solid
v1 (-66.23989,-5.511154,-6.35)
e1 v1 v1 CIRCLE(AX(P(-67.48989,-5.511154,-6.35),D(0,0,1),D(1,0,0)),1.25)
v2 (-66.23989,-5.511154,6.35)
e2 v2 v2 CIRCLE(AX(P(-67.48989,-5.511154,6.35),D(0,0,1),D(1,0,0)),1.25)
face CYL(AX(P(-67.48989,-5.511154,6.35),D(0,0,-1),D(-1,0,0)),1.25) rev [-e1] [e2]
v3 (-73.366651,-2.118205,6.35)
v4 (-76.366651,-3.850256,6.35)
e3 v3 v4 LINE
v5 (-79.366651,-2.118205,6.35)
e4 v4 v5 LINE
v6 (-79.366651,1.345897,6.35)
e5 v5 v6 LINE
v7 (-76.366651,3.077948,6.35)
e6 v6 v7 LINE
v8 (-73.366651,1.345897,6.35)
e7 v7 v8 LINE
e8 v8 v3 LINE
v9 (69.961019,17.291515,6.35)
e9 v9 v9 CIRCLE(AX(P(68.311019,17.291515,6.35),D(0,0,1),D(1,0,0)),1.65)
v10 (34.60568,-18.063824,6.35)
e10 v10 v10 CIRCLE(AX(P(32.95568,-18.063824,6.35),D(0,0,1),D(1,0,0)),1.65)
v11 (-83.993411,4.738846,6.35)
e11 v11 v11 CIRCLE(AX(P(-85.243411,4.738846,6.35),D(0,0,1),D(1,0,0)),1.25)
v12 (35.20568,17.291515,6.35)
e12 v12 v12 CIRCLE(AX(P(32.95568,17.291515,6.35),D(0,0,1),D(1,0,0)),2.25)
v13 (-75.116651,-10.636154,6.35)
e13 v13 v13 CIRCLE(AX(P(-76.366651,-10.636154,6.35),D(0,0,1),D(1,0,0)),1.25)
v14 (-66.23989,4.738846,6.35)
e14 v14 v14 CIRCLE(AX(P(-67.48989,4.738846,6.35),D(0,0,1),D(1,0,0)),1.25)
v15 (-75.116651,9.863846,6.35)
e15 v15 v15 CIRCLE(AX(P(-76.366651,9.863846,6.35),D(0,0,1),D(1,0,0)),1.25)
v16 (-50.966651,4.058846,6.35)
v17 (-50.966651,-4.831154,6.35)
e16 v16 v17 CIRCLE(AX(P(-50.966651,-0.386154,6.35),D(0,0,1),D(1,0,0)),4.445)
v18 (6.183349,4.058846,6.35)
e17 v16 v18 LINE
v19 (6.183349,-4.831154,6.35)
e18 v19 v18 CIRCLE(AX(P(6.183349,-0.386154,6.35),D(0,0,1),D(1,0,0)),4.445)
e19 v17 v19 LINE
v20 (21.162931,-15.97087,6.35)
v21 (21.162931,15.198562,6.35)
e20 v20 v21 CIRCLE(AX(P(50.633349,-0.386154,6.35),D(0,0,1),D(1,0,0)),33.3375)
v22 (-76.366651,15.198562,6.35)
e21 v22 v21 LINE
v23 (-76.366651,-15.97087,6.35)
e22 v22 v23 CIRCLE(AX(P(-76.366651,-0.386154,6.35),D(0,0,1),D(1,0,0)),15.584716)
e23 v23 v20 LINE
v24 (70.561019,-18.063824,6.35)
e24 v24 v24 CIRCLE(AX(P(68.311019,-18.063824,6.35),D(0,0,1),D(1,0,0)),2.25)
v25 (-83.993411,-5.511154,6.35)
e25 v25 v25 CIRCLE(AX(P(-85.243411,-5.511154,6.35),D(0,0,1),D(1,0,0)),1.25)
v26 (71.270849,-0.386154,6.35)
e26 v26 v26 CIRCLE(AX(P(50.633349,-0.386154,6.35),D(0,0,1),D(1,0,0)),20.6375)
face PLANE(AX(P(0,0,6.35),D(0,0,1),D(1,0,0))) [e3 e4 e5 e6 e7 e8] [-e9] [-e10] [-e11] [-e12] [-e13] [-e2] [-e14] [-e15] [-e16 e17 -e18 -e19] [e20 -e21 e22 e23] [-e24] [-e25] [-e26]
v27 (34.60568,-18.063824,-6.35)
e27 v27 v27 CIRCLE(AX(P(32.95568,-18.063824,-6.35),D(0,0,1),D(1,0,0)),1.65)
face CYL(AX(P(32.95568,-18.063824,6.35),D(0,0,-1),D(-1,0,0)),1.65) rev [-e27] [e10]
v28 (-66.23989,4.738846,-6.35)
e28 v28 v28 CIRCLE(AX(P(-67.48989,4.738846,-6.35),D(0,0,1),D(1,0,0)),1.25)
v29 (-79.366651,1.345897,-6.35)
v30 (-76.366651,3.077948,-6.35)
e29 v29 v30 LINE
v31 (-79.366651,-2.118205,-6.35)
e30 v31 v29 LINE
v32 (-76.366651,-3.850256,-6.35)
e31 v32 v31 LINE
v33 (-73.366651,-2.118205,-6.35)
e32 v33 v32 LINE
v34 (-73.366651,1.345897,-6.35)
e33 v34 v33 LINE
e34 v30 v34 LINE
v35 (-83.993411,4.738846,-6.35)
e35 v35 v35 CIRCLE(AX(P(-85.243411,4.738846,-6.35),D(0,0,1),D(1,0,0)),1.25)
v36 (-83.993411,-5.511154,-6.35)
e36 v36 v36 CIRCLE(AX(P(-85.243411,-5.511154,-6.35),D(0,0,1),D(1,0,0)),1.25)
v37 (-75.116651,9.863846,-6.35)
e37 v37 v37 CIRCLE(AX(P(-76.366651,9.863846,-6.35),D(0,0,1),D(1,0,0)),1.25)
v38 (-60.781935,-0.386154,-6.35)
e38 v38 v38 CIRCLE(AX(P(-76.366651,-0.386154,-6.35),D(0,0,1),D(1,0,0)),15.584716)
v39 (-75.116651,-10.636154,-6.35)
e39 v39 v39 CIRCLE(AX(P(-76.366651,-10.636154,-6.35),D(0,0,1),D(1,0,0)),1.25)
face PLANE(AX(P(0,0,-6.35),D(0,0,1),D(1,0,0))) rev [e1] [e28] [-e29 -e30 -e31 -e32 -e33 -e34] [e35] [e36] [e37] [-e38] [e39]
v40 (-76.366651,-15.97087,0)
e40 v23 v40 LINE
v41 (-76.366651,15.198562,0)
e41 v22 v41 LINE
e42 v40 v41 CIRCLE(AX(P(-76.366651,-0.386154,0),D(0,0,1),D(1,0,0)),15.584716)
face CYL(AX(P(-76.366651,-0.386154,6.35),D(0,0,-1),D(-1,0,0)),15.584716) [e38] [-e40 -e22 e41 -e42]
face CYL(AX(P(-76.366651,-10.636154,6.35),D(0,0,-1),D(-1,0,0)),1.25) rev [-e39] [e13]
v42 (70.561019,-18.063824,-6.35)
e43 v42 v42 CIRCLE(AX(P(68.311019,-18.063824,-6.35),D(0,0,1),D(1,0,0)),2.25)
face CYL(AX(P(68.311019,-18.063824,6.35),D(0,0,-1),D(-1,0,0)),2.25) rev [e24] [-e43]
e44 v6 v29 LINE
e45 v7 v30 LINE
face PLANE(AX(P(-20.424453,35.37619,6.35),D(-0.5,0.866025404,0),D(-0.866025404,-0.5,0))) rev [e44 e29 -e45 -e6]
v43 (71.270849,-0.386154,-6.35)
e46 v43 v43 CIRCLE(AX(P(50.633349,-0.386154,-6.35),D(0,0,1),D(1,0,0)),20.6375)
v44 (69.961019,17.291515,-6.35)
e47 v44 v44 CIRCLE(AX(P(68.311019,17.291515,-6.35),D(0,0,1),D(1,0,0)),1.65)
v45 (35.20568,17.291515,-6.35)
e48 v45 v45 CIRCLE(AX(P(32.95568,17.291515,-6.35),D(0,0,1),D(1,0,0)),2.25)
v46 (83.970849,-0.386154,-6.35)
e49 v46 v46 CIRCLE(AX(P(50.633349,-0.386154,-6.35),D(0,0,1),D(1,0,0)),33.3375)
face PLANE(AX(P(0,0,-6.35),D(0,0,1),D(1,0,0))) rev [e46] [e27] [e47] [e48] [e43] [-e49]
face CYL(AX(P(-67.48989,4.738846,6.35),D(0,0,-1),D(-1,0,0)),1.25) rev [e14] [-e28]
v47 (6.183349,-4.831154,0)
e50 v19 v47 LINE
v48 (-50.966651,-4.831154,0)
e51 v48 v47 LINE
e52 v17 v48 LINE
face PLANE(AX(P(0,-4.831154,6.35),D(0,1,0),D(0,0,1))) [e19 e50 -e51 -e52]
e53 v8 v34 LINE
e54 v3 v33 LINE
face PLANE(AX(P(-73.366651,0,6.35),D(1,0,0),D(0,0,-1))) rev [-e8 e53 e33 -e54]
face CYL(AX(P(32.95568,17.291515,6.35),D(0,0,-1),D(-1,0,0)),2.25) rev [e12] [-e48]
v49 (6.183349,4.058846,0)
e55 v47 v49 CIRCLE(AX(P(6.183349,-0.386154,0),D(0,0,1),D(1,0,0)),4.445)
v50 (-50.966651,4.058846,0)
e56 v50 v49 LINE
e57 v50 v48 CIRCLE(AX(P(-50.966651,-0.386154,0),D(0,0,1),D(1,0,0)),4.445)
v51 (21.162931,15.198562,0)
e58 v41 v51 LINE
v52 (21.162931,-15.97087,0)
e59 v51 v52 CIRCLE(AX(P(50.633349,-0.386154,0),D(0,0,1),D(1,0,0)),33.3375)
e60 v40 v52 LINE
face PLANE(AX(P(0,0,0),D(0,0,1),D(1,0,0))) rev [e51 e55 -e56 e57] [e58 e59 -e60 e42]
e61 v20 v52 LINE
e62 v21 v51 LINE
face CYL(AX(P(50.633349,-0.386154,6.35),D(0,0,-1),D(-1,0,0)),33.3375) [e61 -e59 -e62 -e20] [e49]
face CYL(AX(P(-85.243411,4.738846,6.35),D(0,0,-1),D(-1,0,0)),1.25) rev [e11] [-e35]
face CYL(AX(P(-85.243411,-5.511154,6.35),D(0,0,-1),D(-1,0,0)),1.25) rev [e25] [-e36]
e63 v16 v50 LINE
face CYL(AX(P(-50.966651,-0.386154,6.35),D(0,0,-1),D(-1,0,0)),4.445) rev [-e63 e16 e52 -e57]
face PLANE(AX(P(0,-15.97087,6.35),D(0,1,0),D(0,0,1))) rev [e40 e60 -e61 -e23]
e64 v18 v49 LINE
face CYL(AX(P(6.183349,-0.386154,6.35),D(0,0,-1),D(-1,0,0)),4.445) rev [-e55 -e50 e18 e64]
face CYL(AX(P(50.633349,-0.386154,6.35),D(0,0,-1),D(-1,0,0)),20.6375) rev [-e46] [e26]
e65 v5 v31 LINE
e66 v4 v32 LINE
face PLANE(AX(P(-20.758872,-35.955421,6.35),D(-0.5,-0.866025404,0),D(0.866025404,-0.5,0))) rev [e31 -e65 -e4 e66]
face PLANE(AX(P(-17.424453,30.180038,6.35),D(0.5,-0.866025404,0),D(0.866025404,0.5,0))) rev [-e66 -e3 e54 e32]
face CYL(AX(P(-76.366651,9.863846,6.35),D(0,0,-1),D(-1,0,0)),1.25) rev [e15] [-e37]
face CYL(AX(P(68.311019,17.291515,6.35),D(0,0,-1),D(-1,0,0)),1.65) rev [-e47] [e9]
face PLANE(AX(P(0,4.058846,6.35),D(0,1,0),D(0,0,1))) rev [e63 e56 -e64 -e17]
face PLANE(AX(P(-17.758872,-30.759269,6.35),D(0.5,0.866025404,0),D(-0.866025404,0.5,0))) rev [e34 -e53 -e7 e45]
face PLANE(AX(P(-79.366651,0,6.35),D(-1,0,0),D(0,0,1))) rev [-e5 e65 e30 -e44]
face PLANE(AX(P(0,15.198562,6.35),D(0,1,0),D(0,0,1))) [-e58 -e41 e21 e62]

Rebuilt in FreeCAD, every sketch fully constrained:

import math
import FreeCAD as App
import Part
import Sketcher
Q = App.Units.Quantity


def add_polygon(sketch, points):
    """Adds a closed chain of lines whose ends are joined by coincident constraints."""
    first, n = sketch.GeometryCount, len(points)
    for a, b in zip(points, points[1:] + points[:1]):
        sketch.addGeometry(Part.LineSegment(App.Vector(*a, 0), App.Vector(*b, 0)), False)
    for i in range(n):
        sketch.addConstraint(Sketcher.Constraint("Coincident", first + i, 2, first + (i + 1) % n, 1))

doc = App.newDocument("Part")
params = doc.addObject("Spreadsheet::Sheet", "Params")
for row, (alias, value) in enumerate([
    ("sketch1_diameter", "1.625 in"),
    ("sketch1_radius", "1.3125 in"),
    ("sketch1_radius2", "0.175 in"),
    ("sketch1_width", "2.25 in"),
    ("pad1_length", "0.25 in"),
    ("sketch2_diameter", "2.625 in"),
    ("sketch2_diameter2", "1.625 in"),
    ("pad2_length", "0.25 in"),
], start=1):
    params.set(f"A{row}", alias)
    params.set(f"B{row}", "=" + value)
    params.setAlias(f"B{row}", alias)

body = doc.addObject("PartDesign::Body", "Body")

# Sketch on XY plane
sketch1 = body.newObject("Sketcher::SketchObject", "Sketch")
sketch1.AttachmentSupport = (doc.getObject("XY_Plane"), [""])
sketch1.MapMode = "FlatFace"
sketch1.addGeometry(Part.ArcOfCircle(Part.Circle(App.Vector(-76.4, -0.4, 0), App.Vector(0, 0, 1), 15.6), math.radians(90), math.radians(270)), False)  # 0
sketch1.addGeometry(Part.LineSegment(App.Vector(-76.4, -16, 0), App.Vector(21.2, -16, 0)), False)  # 1
sketch1.addGeometry(Part.ArcOfCircle(Part.Circle(App.Vector(50.6, -0.4, 0), App.Vector(0, 0, 1), 33.3), math.radians(-152), math.radians(152)), False)  # 2
sketch1.addGeometry(Part.LineSegment(App.Vector(21.2, 15.2, 0), App.Vector(-76.4, 15.2, 0)), False)  # 3
sketch1.addGeometry(Part.Circle(App.Vector(-76.4, -10.6, 0), App.Vector(0, 0, 1), 1.2), False)  # 4
sketch1.addGeometry(Part.Circle(App.Vector(-85.2, -5.5, 0), App.Vector(0, 0, 1), 1.2), False)  # 5
sketch1.addGeometry(Part.Circle(App.Vector(-67.5, -5.5, 0), App.Vector(0, 0, 1), 1.2), False)  # 6
sketch1.addGeometry(Part.Circle(App.Vector(-85.2, 4.7, 0), App.Vector(0, 0, 1), 1.2), False)  # 7
add_polygon(sketch1, [(-76.4, -3.9), (-79.4, -2.1), (-79.4, 1.3), (-76.4, 3.1), (-73.4, 1.3), (-73.4, -2.1)])  # lines 8-13
sketch1.addGeometry(Part.Circle(App.Vector(-76.4, 9.9, 0), App.Vector(0, 0, 1), 1.2), False)  # 14
sketch1.addGeometry(Part.Circle(App.Vector(-67.5, 4.7, 0), App.Vector(0, 0, 1), 1.2), False)  # 15
sketch1.addGeometry(Part.ArcOfCircle(Part.Circle(App.Vector(-51, -0.4, 0), App.Vector(0, 0, 1), 4.4), math.radians(90), math.radians(270)), False)  # 16
sketch1.addGeometry(Part.LineSegment(App.Vector(-51, 4.1, 0), App.Vector(6.2, 4.1, 0)), False)  # 17
sketch1.addGeometry(Part.ArcOfCircle(Part.Circle(App.Vector(6.2, -0.4, 0), App.Vector(0, 0, 1), 4.4), math.radians(-90), math.radians(90)), False)  # 18
sketch1.addGeometry(Part.LineSegment(App.Vector(6.2, -4.8, 0), App.Vector(-51, -4.8, 0)), False)  # 19
sketch1.addGeometry(Part.Circle(App.Vector(68.3, 17.3, 0), App.Vector(0, 0, 1), 1.6), False)  # 20
sketch1.addGeometry(Part.Circle(App.Vector(33, -18.1, 0), App.Vector(0, 0, 1), 1.6), False)  # 21
sketch1.addGeometry(Part.Circle(App.Vector(68.3, -18.1, 0), App.Vector(0, 0, 1), 2.2), False)  # 22
sketch1.addGeometry(Part.Circle(App.Vector(33, 17.3, 0), App.Vector(0, 0, 1), 2.2), False)  # 23
sketch1.addGeometry(Part.Circle(App.Vector(50.6, -0.4, 0), App.Vector(0, 0, 1), 20.6), False)  # 24
sketch1.addConstraint([
    Sketcher.Constraint("Tangent", 0, 2, 1, 1),
    Sketcher.Constraint("Coincident", 1, 2, 2, 1),
    Sketcher.Constraint("Coincident", 2, 2, 3, 1),
    Sketcher.Constraint("Tangent", 3, 2, 0, 1),
    Sketcher.Constraint("Tangent", 16, 1, 17, 1),
    Sketcher.Constraint("Tangent", 17, 2, 18, 2),
    Sketcher.Constraint("Tangent", 18, 1, 19, 1),
    Sketcher.Constraint("Tangent", 19, 2, 16, 2),
    Sketcher.Constraint("Horizontal", 1),
    Sketcher.Constraint("Horizontal", 3),
    Sketcher.Constraint("Vertical", 9),
    Sketcher.Constraint("Vertical", 12),
    Sketcher.Constraint("Horizontal", 17),
    Sketcher.Constraint("Horizontal", 19),
    Sketcher.Constraint("Coincident", 24, 3, 2, 3),
    Sketcher.Constraint("Equal", 4, 5),
    Sketcher.Constraint("Equal", 5, 6),
    Sketcher.Constraint("Equal", 6, 7),
    Sketcher.Constraint("Equal", 7, 14),
    Sketcher.Constraint("Equal", 14, 15),
    Sketcher.Constraint("Equal", 20, 21),
    Sketcher.Constraint("Equal", 22, 23),
    Sketcher.Constraint("Parallel", 8, 11),
    Sketcher.Constraint("Parallel", 10, 13),
    Sketcher.Constraint("Horizontal", 0, 3, 2, 3),
    Sketcher.Constraint("Horizontal", 5, 3, 6, 3),
    Sketcher.Constraint("Horizontal", 7, 3, 15, 3),
    Sketcher.Constraint("Horizontal", 2, 3, 16, 3),
    Sketcher.Constraint("Horizontal", 21, 3, 22, 3),
    Sketcher.Constraint("Horizontal", 20, 3, 23, 3),
    Sketcher.Constraint("Horizontal", 9, 2, 11, 2),
    Sketcher.Constraint("Horizontal", 8, 2, 12, 2),
    Sketcher.Constraint("Vertical", 0, 3, 4, 3),
    Sketcher.Constraint("Vertical", 5, 3, 7, 3),
    Sketcher.Constraint("Vertical", 4, 3, 14, 3),
    Sketcher.Constraint("Vertical", 6, 3, 15, 3),
    Sketcher.Constraint("Vertical", 20, 3, 22, 3),
    Sketcher.Constraint("Vertical", 21, 3, 23, 3),
    Sketcher.Constraint("Vertical", 3, 2, 10, 2),
    Sketcher.Constraint("Vertical", 10, 2, 13, 2),
    Sketcher.Constraint("Diameter", 24, Q("1.625 in")),
    Sketcher.Constraint("Angle", 8, Q("150 deg")),
    Sketcher.Constraint("Radius", 2, Q("1.3125 in")),
    Sketcher.Constraint("Radius", 16, Q("0.175 in")),
    Sketcher.Constraint("DistanceX", 0, 3, 2, 3, Q("5 in")),
    Sketcher.Constraint("DistanceX", 0, 3, 16, 3, Q("1 in")),
    Sketcher.Constraint("DistanceX", 17, 1, 17, 2, Q("2.25 in")),
    Sketcher.Constraint("Diameter", 4, 2.5),
    Sketcher.Constraint("Diameter", 20, 3.3),
    Sketcher.Constraint("Diameter", 22, 4.5),
    Sketcher.Constraint("DistanceY", 9, 1, 9, 2, 3.464102),
    Sketcher.Constraint("Radius", 0, 15.584716),
    Sketcher.Constraint("DistanceY", 0, 2, 5, 3, Q("0.4117998 in")),
    Sketcher.Constraint("DistanceY", 7, 3, 3, 2, Q("0.4117998 in")),
    Sketcher.Constraint("Distance", 8, 3.464102),
    Sketcher.Constraint("DistanceY", 4, 3, 0, 3, 10.25),
    Sketcher.Constraint("DistanceY", 7, 3, 14, 3, 5.125),
    Sketcher.Constraint("DistanceY", 0, 3, 10, 2, 3.464102),
    Sketcher.Constraint("DistanceX", 0, 3, -1, 1, 76.366651),
    Sketcher.Constraint("DistanceX", 5, 3, -1, 1, 85.243411),
    Sketcher.Constraint("DistanceX", 6, 3, -1, 1, 67.48989),
    Sketcher.Constraint("DistanceX", -1, 1, 20, 3, 68.311019),
    Sketcher.Constraint("DistanceX", -1, 1, 21, 3, 32.95568),
    Sketcher.Constraint("DistanceY", 0, 2, -1, 1, 15.97087),
    Sketcher.Constraint("DistanceY", 2, 3, 20, 3, 17.67767),
    Sketcher.Constraint("DistanceY", 21, 3, 2, 3, 17.67767),
])
sketch1.setExpression("Constraints[46]", "Params.sketch1_diameter")
sketch1.setExpression("Constraints[48]", "Params.sketch1_radius")
sketch1.setExpression("Constraints[49]", "Params.sketch1_radius2")
sketch1.setExpression("Constraints[52]", "Params.sketch1_width")
pad1 = body.newObject("PartDesign::Pad", "Pad")
pad1.Profile = sketch1
pad1.setExpression("Length", "Params.pad1_length")

# Sketch on XY plane
sketch2 = body.newObject("Sketcher::SketchObject", "Sketch001")
sketch2.AttachmentSupport = (doc.getObject("XY_Plane"), [""])
sketch2.MapMode = "FlatFace"
sketch2.AttachmentOffset = App.Placement(App.Vector(0, 0, -0.25 * 25.4), App.Rotation())
sketch2.addGeometry(Part.Circle(App.Vector(50.6, -0.4, 0), App.Vector(0, 0, 1), 33.3), False)  # 0
sketch2.addGeometry(Part.Circle(App.Vector(68.3, 17.3, 0), App.Vector(0, 0, 1), 1.6), False)  # 1
sketch2.addGeometry(Part.Circle(App.Vector(33, 17.3, 0), App.Vector(0, 0, 1), 2.2), False)  # 2
sketch2.addGeometry(Part.Circle(App.Vector(50.6, -0.4, 0), App.Vector(0, 0, 1), 20.6), False)  # 3
sketch2.addGeometry(Part.Circle(App.Vector(68.3, -18.1, 0), App.Vector(0, 0, 1), 2.2), False)  # 4
sketch2.addGeometry(Part.Circle(App.Vector(33, -18.1, 0), App.Vector(0, 0, 1), 1.6), False)  # 5
sketch2.addGeometry(Part.Circle(App.Vector(-76.4, -0.4, 0), App.Vector(0, 0, 1), 15.6), False)  # 6
sketch2.addGeometry(Part.Circle(App.Vector(-67.5, -5.5, 0), App.Vector(0, 0, 1), 1.2), False)  # 7
sketch2.addGeometry(Part.Circle(App.Vector(-67.5, 4.7, 0), App.Vector(0, 0, 1), 1.2), False)  # 8
sketch2.addGeometry(Part.Circle(App.Vector(-76.4, -10.6, 0), App.Vector(0, 0, 1), 1.2), False)  # 9
sketch2.addGeometry(Part.Circle(App.Vector(-85.2, -5.5, 0), App.Vector(0, 0, 1), 1.2), False)  # 10
add_polygon(sketch2, [(-76.4, -3.9), (-79.4, -2.1), (-79.4, 1.3), (-76.4, 3.1), (-73.4, 1.3), (-73.4, -2.1)])  # lines 11-16
sketch2.addGeometry(Part.Circle(App.Vector(-76.4, 9.9, 0), App.Vector(0, 0, 1), 1.2), False)  # 17
sketch2.addGeometry(Part.Circle(App.Vector(-85.2, 4.7, 0), App.Vector(0, 0, 1), 1.2), False)  # 18
sketch2.addConstraint([
    Sketcher.Constraint("Vertical", 12),
    Sketcher.Constraint("Vertical", 15),
    Sketcher.Constraint("Coincident", 3, 3, 0, 3),
    Sketcher.Constraint("Equal", 2, 4),
    Sketcher.Constraint("Equal", 1, 5),
    Sketcher.Constraint("Equal", 7, 8),
    Sketcher.Constraint("Equal", 8, 9),
    Sketcher.Constraint("Equal", 9, 10),
    Sketcher.Constraint("Equal", 10, 17),
    Sketcher.Constraint("Equal", 17, 18),
    Sketcher.Constraint("Parallel", 11, 14),
    Sketcher.Constraint("Parallel", 13, 16),
    Sketcher.Constraint("Horizontal", 1, 3, 2, 3),
    Sketcher.Constraint("Horizontal", 4, 3, 5, 3),
    Sketcher.Constraint("Horizontal", 3, 3, 6, 3),
    Sketcher.Constraint("Horizontal", 7, 3, 10, 3),
    Sketcher.Constraint("Horizontal", 8, 3, 18, 3),
    Sketcher.Constraint("Horizontal", 12, 2, 14, 2),
    Sketcher.Constraint("Horizontal", 11, 2, 15, 2),
    Sketcher.Constraint("Vertical", 1, 3, 4, 3),
    Sketcher.Constraint("Vertical", 2, 3, 5, 3),
    Sketcher.Constraint("Vertical", 7, 3, 8, 3),
    Sketcher.Constraint("Vertical", 6, 3, 9, 3),
    Sketcher.Constraint("Vertical", 9, 3, 17, 3),
    Sketcher.Constraint("Vertical", 10, 3, 18, 3),
    Sketcher.Constraint("Vertical", 17, 3, 13, 2),
    Sketcher.Constraint("Vertical", 13, 2, 16, 2),
    Sketcher.Constraint("Diameter", 0, Q("2.625 in")),
    Sketcher.Constraint("Diameter", 3, Q("1.625 in")),
    Sketcher.Constraint("Angle", 11, Q("150 deg")),
    Sketcher.Constraint("DistanceX", 6, 3, 0, 3, Q("5 in")),
    Sketcher.Constraint("Diameter", 1, 3.3),
    Sketcher.Constraint("Diameter", 2, 4.5),
    Sketcher.Constraint("Diameter", 7, 2.5),
    Sketcher.Constraint("Diameter", 6, 31.169432),
    Sketcher.Constraint("DistanceY", 12, 1, 12, 2, 3.464102),
    Sketcher.Constraint("Distance", 11, 3.464102),
    Sketcher.Constraint("DistanceY", 7, 3, 6, 3, 5.125),
    Sketcher.Constraint("DistanceY", 7, 3, 8, 3, 10.25),
    Sketcher.Constraint("DistanceY", 9, 3, 6, 3, 10.25),
    Sketcher.Constraint("DistanceY", 6, 3, 17, 3, 10.25),
    Sketcher.Constraint("DistanceY", 6, 3, 13, 2, 3.464102),
    Sketcher.Constraint("DistanceX", -1, 1, 0, 3, 50.633349),
    Sketcher.Constraint("DistanceX", -1, 1, 1, 3, 68.311019),
    Sketcher.Constraint("DistanceX", -1, 1, 2, 3, 32.95568),
    Sketcher.Constraint("DistanceX", 7, 3, -1, 1, 67.48989),
    Sketcher.Constraint("DistanceX", 10, 3, -1, 1, 85.243411),
    Sketcher.Constraint("DistanceY", 0, 3, 1, 3, 17.67767),
    Sketcher.Constraint("DistanceY", 4, 3, 0, 3, 17.67767),
    Sketcher.Constraint("DistanceY", 0, 3, -1, 1, 0.386154),
])
sketch2.setExpression("Constraints[33]", "Params.sketch2_diameter")
sketch2.setExpression("Constraints[34]", "Params.sketch2_diameter2")
pad2 = body.newObject("PartDesign::Pad", "Pad001")
pad2.Profile = sketch2
pad2.setExpression("Length", "Params.pad2_length")

doc.recompute()
